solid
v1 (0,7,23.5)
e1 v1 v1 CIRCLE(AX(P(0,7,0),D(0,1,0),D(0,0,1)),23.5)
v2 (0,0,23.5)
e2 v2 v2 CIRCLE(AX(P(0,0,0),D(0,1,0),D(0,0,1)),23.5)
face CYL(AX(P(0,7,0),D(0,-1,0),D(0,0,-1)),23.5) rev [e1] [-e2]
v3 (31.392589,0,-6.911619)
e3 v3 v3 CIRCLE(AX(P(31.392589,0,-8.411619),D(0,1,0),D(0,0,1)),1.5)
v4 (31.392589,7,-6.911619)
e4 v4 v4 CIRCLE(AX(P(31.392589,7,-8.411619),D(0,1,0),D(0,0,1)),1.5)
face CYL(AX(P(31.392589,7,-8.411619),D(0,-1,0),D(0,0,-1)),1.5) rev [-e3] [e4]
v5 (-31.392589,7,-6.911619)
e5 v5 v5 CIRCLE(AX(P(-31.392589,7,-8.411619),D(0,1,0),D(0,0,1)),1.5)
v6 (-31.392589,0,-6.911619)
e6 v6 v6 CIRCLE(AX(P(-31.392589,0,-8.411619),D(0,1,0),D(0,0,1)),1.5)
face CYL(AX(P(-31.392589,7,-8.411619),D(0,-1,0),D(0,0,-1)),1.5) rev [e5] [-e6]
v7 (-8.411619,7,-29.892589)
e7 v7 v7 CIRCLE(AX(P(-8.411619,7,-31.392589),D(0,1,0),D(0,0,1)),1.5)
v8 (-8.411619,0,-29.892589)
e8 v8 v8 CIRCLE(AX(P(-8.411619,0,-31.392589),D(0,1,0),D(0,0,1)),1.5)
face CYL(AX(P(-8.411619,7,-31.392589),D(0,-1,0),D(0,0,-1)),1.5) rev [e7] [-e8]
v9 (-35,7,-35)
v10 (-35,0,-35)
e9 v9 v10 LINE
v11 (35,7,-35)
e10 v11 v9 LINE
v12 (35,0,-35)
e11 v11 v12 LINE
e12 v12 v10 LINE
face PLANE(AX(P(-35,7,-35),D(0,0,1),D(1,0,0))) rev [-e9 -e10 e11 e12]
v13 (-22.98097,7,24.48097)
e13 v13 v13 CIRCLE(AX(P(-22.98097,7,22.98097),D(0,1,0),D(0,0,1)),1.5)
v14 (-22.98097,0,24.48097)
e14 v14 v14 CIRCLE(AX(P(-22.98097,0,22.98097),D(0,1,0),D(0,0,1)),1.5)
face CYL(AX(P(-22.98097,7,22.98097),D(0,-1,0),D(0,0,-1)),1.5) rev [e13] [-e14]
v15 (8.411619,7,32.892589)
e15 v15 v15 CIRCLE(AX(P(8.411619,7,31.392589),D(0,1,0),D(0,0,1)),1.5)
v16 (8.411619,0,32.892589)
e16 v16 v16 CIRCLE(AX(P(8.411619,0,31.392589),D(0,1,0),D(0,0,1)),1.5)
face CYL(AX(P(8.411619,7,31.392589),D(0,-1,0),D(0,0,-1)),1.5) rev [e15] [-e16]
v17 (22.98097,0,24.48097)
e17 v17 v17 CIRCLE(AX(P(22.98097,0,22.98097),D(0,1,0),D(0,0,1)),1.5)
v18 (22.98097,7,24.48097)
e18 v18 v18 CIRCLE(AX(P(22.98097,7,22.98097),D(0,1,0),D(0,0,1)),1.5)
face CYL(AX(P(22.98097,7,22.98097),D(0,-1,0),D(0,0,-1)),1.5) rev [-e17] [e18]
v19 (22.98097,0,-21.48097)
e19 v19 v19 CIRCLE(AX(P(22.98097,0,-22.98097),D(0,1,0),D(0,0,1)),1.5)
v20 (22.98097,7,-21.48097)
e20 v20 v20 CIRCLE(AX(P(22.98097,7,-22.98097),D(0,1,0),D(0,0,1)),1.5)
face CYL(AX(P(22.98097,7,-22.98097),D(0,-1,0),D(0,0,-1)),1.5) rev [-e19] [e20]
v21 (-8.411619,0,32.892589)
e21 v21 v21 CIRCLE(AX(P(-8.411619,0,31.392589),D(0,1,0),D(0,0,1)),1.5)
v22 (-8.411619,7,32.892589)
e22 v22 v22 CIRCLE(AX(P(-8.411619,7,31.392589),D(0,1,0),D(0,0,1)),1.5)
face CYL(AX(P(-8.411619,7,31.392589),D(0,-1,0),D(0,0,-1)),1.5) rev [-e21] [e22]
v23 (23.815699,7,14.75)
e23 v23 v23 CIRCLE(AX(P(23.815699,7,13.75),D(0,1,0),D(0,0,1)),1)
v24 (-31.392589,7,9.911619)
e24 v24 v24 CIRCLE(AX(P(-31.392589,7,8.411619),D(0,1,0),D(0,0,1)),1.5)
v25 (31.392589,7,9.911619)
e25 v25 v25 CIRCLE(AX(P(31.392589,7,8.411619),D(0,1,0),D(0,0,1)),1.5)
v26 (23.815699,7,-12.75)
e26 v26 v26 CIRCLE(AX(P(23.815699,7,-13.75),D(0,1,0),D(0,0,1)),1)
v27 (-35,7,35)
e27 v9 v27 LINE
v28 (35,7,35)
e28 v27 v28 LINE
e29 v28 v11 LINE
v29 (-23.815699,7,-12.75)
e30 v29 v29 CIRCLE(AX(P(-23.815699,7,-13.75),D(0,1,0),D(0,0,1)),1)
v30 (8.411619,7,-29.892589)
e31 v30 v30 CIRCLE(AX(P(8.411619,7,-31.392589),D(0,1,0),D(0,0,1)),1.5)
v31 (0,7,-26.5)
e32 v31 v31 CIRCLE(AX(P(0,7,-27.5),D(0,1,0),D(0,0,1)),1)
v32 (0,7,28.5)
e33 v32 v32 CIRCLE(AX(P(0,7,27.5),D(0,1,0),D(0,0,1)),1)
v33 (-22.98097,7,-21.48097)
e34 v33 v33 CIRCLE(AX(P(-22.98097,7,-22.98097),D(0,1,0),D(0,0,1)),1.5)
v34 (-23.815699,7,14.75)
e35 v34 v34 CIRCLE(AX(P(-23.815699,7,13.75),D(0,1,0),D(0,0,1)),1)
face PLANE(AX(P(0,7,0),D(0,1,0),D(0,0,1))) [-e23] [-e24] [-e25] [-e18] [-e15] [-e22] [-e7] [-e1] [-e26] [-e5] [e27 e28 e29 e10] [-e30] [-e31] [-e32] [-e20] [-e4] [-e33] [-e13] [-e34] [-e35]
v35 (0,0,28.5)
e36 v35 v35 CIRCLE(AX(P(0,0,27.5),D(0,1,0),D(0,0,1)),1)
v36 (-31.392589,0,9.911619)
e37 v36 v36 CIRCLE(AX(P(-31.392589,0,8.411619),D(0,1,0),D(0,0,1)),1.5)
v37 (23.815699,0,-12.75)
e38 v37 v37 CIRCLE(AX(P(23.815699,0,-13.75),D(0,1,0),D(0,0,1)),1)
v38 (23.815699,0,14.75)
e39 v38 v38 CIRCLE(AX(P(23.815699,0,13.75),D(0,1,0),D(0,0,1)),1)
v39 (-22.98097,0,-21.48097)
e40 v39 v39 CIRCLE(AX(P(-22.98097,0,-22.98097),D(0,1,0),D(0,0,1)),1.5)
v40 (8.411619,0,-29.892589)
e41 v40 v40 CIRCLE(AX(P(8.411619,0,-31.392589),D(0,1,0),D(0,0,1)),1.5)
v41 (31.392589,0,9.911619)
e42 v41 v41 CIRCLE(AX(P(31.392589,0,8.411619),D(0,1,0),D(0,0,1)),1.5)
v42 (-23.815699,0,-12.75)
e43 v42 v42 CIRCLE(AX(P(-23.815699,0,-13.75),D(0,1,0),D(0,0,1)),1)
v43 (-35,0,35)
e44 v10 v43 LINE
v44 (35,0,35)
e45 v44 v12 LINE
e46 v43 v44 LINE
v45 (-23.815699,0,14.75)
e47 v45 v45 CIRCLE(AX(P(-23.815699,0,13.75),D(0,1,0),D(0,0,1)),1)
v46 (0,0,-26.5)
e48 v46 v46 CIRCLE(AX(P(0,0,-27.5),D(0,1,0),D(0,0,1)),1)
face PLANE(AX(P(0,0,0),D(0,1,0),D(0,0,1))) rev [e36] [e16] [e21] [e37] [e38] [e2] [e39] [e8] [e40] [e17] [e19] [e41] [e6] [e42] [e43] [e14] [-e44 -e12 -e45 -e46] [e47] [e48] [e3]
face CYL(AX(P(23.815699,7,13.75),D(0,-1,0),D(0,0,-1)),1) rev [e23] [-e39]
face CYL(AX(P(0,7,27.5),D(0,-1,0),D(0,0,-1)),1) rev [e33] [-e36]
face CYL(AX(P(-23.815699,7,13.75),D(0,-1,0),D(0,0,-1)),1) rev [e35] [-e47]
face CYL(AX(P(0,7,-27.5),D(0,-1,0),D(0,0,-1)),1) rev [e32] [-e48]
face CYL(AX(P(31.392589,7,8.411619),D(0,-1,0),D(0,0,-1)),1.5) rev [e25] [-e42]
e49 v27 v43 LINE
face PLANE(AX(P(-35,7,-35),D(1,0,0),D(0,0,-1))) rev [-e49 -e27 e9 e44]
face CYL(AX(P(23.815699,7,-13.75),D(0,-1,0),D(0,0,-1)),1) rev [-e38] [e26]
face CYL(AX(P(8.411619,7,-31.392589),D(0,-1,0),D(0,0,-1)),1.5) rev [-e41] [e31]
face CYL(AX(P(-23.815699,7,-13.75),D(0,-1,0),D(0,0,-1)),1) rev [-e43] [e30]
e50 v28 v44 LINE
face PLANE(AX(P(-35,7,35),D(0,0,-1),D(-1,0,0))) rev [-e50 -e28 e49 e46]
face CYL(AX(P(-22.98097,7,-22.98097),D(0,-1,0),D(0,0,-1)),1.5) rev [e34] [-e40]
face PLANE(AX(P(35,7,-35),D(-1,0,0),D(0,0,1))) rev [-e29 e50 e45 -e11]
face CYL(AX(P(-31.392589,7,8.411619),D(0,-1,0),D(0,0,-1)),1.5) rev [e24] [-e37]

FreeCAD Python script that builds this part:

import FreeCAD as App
import Part
import Sketcher
from FreeCAD import Vector


def add_polygon(sketch, points):
    """Adds a closed chain of lines whose ends are joined by coincident constraints."""
    first, n = sketch.GeometryCount, len(points)
    for a, b in zip(points, points[1:] + points[:1]):
        sketch.addGeometry(Part.LineSegment(App.Vector(*a, 0), App.Vector(*b, 0)), False)
    for i in range(n):
        sketch.addConstraint(Sketcher.Constraint("Coincident", first + i, 2, first + (i + 1) % n, 1))

doc = App.newDocument("Part")
params = doc.addObject("Spreadsheet::Sheet", "Params")
for row, (alias, value) in enumerate([
    ("sketch1_diameter", "3 mm"),
    ("sketch1_diameter2", "2 mm"),
    ("sketch1_diameter3", "47 mm"),
    ("sketch1_width", "70 mm"),
    ("pad1_length", "7 mm"),
], start=1):
    params.set(f"A{row}", alias)
    params.set(f"B{row}", "=" + value)
    params.setAlias(f"B{row}", alias)

body = doc.addObject("PartDesign::Body", "Body")

# Sketch on XZ plane
sketch1 = body.newObject("Sketcher::SketchObject", "Sketch")
sketch1.AttachmentSupport = (doc.getObject("XZ_Plane"), [""])
sketch1.MapMode = "FlatFace"
add_polygon(sketch1, [(-35, -35), (-35, 35), (35, 35), (35, -35)])  # lines 0-3
sketch1.addGeometry(Part.Circle(Vector(-22.98097, 22.98097, 0), Vector(0, 0, 1), 1.5), False)  # 4
sketch1.addGeometry(Part.Circle(Vector(-8.411619, 31.392589, 0), Vector(0, 0, 1), 1.5), False)  # 5
sketch1.addGeometry(Part.Circle(Vector(-31.392589, 8.411619, 0), Vector(0, 0, 1), 1.5), False)  # 6
sketch1.addGeometry(Part.Circle(Vector(-23.815699, 13.75, 0), Vector(0, 0, 1), 1), False)  # 7
sketch1.addGeometry(Part.Circle(Vector(0, 27.5, 0), Vector(0, 0, 1), 1), False)  # 8
sketch1.addGeometry(Part.Circle(Vector(8.411619, 31.392589, 0), Vector(0, 0, 1), 1.5), False)  # 9
sketch1.addGeometry(Part.Circle(Vector(22.98097, 22.98097, 0), Vector(0, 0, 1), 1.5), False)  # 10
sketch1.addGeometry(Part.Circle(Vector(23.815699, 13.75, 0), Vector(0, 0, 1), 1), False)  # 11
sketch1.addGeometry(Part.Circle(Vector(31.392589, 8.411619, 0), Vector(0, 0, 1), 1.5), False)  # 12
sketch1.addGeometry(Part.Circle(Vector(-31.392589, -8.411619, 0), Vector(0, 0, 1), 1.5), False)  # 13
sketch1.addGeometry(Part.Circle(Vector(-23.815699, -13.75, 0), Vector(0, 0, 1), 1), False)  # 14
sketch1.addGeometry(Part.Circle(Vector(-22.98097, -22.98097, 0), Vector(0, 0, 1), 1.5), False)  # 15
sketch1.addGeometry(Part.Circle(Vector(-8.411619, -31.392589, 0), Vector(0, 0, 1), 1.5), False)  # 16
sketch1.addGeometry(Part.Circle(Vector(0, 0, 0), Vector(0, 0, 1), 23.5), False)  # 17
sketch1.addGeometry(Part.Circle(Vector(23.815699, -13.75, 0), Vector(0, 0, 1), 1), False)  # 18
sketch1.addGeometry(Part.Circle(Vector(31.392589, -8.411619, 0), Vector(0, 0, 1), 1.5), False)  # 19
sketch1.addGeometry(Part.Circle(Vector(0, -27.5, 0), Vector(0, 0, 1), 1), False)  # 20
sketch1.addGeometry(Part.Circle(Vector(8.411619, -31.392589, 0), Vector(0, 0, 1), 1.5), False)  # 21
sketch1.addGeometry(Part.Circle(Vector(22.98097, -22.98097, 0), Vector(0, 0, 1), 1.5), False)  # 22
sketch1.addConstraint([
    Sketcher.Constraint("Vertical", 0),
    Sketcher.Constraint("Horizontal", 1),
    Sketcher.Constraint("Vertical", 2),
    Sketcher.Constraint("Horizontal", 3),
    Sketcher.Constraint("Coincident", 17, 3, -1, 1),
    Sketcher.Constraint("Equal", 4, 5),
    Sketcher.Constraint("Equal", 5, 6),
    Sketcher.Constraint("Equal", 7, 8),
    Sketcher.Constraint("Equal", 6, 9),
    Sketcher.Constraint("Equal", 9, 10),
    Sketcher.Constraint("Equal", 8, 11),
    Sketcher.Constraint("Equal", 10, 12),
    Sketcher.Constraint("Equal", 12, 13),
    Sketcher.Constraint("Equal", 11, 14),
    Sketcher.Constraint("Equal", 13, 15),
    Sketcher.Constraint("Equal", 15, 16),
    Sketcher.Constraint("Equal", 14, 18),
    Sketcher.Constraint("Equal", 16, 19),
    Sketcher.Constraint("Equal", 18, 20),
    Sketcher.Constraint("Equal", 19, 21),
    Sketcher.Constraint("Equal", 21, 22),
    Sketcher.Constraint("Symmetric", 12, 3, 13, 3, -1, 1),
    Sketcher.Constraint("Symmetric", 11, 3, 14, 3, -1, 1),
    Sketcher.Constraint("Symmetric", 10, 3, 15, 3, -1, 1),
    Sketcher.Constraint("Symmetric", 9, 3, 16, 3, -1, 1),
    Sketcher.Constraint("Symmetric", 7, 3, 18, 3, -1, 1),
    Sketcher.Constraint("Symmetric", 6, 3, 19, 3, -1, 1),
    Sketcher.Constraint("Symmetric", 8, 3, 20, 3, -1, 1),
    Sketcher.Constraint("Symmetric", 5, 3, 21, 3, -1, 1),
    Sketcher.Constraint("Symmetric", 4, 3, 22, 3, -1, 1),
    Sketcher.Constraint("Symmetric", 0, 2, 2, 2, -1, 1),
    Sketcher.Constraint("Symmetric", 5, 3, 9, 3, -2),
    Sketcher.Constraint("Symmetric", 4, 3, 10, 3, -2),
    Sketcher.Constraint("Symmetric", 7, 3, 11, 3, -2),
    Sketcher.Constraint("Symmetric", 6, 3, 12, 3, -2),
    Sketcher.Constraint("PointOnObject", 8, 3, -2),
    Sketcher.Constraint("Equal", 3, 0),
    Sketcher.Constraint("Diameter", 4, 3.0),
    Sketcher.Constraint("Diameter", 7, 2.0),
    Sketcher.Constraint("Diameter", 17, 47.0),
    Sketcher.Constraint("DistanceX", 1, 1, 1, 2, 70.0),
    Sketcher.Constraint("DistanceY", -1, 1, 8, 3, 27.5),
    Sketcher.Constraint("DistanceY", 14, 3, 7, 3, 27.5),
    Sketcher.Constraint("DistanceX", 7, 3, -1, 1, 23.815699),
    Sketcher.Constraint("DistanceX", 4, 3, -1, 1, 22.98097),
    Sketcher.Constraint("DistanceY", -1, 1, 4, 3, 22.98097),
    Sketcher.Constraint("DistanceX", 5, 3, -1, 1, 8.411619),
    Sketcher.Constraint("DistanceY", -1, 1, 5, 3, 31.392589),
    Sketcher.Constraint("DistanceX", 6, 3, -1, 1, 31.392589),
    Sketcher.Constraint("DistanceY", -1, 1, 6, 3, 8.411619),
])
sketch1.setExpression("Constraints[41]", "Params.sketch1_diameter")
sketch1.setExpression("Constraints[42]", "Params.sketch1_diameter2")
sketch1.setExpression("Constraints[43]", "Params.sketch1_diameter3")
sketch1.setExpression("Constraints[44]", "Params.sketch1_width")
pad1 = body.newObject("PartDesign::Pad", "Pad")
pad1.Profile = sketch1
pad1.setExpression("Length", "Params.pad1_length")
pad1.Reversed = True

doc.recompute()
